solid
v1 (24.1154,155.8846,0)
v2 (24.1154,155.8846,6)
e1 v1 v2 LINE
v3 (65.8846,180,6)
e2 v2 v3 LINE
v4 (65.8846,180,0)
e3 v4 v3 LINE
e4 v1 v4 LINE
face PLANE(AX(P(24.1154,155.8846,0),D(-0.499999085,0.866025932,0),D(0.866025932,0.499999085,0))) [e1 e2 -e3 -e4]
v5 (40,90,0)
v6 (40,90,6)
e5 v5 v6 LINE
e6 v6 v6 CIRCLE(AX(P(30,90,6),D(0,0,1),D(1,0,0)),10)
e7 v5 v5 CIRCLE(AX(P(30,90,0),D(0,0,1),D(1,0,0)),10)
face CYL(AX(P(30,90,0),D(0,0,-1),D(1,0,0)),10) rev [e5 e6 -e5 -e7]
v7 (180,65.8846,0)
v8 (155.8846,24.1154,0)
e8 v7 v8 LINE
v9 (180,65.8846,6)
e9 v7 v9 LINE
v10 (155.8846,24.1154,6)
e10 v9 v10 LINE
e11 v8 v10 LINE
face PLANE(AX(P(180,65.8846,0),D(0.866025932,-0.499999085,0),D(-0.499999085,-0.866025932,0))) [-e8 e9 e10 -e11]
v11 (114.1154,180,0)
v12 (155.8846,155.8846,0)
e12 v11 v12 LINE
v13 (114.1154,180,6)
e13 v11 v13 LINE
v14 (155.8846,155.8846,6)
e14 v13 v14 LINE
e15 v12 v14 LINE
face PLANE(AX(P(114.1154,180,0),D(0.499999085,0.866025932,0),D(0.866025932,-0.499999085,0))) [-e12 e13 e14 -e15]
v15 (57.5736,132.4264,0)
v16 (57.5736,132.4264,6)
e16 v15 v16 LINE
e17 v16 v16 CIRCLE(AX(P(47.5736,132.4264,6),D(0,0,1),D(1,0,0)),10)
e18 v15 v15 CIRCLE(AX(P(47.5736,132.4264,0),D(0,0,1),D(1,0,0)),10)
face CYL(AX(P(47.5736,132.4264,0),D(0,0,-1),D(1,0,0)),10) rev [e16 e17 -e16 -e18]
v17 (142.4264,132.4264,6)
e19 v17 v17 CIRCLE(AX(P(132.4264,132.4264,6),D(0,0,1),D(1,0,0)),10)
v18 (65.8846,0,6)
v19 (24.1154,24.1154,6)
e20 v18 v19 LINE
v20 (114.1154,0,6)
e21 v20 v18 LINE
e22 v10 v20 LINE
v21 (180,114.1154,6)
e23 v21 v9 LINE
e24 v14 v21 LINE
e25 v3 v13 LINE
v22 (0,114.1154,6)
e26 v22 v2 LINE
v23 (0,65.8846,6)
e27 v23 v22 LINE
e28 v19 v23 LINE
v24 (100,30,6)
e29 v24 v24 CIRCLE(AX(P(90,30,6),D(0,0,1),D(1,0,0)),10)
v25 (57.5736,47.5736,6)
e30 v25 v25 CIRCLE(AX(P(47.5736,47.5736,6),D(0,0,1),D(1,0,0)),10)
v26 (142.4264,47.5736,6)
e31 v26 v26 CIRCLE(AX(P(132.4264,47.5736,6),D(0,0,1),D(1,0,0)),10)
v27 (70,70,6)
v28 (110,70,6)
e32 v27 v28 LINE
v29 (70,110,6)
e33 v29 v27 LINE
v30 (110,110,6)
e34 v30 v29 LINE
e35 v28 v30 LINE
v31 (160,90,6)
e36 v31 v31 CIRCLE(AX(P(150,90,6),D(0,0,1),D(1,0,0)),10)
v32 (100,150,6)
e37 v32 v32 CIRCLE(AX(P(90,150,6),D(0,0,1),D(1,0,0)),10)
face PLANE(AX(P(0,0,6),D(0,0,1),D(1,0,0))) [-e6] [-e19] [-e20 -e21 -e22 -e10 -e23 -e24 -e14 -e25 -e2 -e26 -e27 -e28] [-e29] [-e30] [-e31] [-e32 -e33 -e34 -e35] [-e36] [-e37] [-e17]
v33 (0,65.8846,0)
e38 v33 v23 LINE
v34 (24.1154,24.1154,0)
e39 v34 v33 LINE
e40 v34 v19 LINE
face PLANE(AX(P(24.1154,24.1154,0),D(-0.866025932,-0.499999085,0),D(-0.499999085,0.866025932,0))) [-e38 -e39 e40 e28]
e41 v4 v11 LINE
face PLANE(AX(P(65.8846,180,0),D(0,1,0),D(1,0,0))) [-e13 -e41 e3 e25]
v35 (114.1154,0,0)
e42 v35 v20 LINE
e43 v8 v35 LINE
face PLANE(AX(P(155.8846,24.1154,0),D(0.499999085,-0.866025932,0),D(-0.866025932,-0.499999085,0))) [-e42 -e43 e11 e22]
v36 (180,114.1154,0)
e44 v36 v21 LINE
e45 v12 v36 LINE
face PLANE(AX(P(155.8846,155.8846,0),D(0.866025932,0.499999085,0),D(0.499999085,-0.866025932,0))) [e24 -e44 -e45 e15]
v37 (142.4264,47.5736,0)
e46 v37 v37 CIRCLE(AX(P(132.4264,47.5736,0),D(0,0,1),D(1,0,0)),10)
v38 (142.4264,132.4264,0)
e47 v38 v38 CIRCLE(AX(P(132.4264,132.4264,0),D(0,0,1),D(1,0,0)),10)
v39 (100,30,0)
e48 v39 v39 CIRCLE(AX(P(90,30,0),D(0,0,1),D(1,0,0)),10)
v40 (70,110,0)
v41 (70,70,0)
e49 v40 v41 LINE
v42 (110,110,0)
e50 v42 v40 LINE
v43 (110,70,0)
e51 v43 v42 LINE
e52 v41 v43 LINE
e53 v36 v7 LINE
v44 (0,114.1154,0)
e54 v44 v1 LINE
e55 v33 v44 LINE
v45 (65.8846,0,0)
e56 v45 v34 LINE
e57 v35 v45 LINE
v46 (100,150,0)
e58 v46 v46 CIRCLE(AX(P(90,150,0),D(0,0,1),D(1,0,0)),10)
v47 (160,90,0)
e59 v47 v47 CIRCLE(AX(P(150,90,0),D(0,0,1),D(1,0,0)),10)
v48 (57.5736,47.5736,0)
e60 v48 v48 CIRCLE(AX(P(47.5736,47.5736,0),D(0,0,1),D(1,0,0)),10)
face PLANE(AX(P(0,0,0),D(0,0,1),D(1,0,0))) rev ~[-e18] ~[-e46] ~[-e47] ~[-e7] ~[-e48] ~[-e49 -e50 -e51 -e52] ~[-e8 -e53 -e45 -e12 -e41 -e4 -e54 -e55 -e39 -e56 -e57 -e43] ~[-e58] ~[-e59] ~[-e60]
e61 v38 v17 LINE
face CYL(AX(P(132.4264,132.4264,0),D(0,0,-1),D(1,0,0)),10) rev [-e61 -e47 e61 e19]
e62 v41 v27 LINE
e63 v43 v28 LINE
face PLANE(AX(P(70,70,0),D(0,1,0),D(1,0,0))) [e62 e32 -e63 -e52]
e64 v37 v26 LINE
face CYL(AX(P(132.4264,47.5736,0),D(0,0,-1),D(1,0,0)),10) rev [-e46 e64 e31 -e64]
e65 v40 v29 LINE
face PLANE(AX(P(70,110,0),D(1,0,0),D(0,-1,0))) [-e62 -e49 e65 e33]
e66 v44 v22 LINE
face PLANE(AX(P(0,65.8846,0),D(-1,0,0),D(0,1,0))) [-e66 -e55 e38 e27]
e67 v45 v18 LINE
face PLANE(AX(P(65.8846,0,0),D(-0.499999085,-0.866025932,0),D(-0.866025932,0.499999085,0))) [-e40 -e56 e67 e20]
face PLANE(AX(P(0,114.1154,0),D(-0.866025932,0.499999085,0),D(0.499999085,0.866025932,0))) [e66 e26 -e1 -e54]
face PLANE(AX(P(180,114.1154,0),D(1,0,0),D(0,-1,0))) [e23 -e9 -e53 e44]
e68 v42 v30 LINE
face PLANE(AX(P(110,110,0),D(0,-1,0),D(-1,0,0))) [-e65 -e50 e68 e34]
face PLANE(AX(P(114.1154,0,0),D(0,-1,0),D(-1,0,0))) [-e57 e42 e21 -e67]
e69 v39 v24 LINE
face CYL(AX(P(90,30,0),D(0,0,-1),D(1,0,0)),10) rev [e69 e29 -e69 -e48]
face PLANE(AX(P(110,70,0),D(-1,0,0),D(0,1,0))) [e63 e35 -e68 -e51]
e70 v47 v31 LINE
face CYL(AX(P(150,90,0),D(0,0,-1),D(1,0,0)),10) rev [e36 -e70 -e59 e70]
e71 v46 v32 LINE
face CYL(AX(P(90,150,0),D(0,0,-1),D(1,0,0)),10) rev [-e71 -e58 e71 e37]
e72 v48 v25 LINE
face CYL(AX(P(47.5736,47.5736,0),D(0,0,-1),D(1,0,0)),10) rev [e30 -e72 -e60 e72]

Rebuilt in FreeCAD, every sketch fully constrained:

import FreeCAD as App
import Part
import Sketcher
from FreeCAD import Vector
Q = App.Units.Quantity


def add_polygon(sketch, points):
    """Adds a closed chain of lines whose ends are joined by coincident constraints."""
    first, n = sketch.GeometryCount, len(points)
    for a, b in zip(points, points[1:] + points[:1]):
        sketch.addGeometry(Part.LineSegment(App.Vector(*a, 0), App.Vector(*b, 0)), False)
    for i in range(n):
        sketch.addConstraint(Sketcher.Constraint("Coincident", first + i, 2, first + (i + 1) % n, 1))

doc = App.newDocument("Part")
body = doc.addObject("PartDesign::Body", "Body")

# Sketch on XY plane
sketch1 = body.newObject("Sketcher::SketchObject", "Sketch")
sketch1.AttachmentSupport = (doc.getObject("XY_Plane"), [""])
sketch1.MapMode = "FlatFace"
add_polygon(sketch1, [(24, 24), (66, 0), (114, 0), (156, 24), (180, 66), (180, 114), (156, 156), (114, 180), (66, 180), (24, 156), (0, 114), (0, 66)])  # lines 0-11
sketch1.addGeometry(Part.Circle(Vector(48, 48, 0), Vector(0, 0, 1), 10), False)  # 12
sketch1.addGeometry(Part.Circle(Vector(90, 30, 0), Vector(0, 0, 1), 10), False)  # 13
sketch1.addGeometry(Part.Circle(Vector(132, 48, 0), Vector(0, 0, 1), 10), False)  # 14
sketch1.addGeometry(Part.Circle(Vector(30, 90, 0), Vector(0, 0, 1), 10), False)  # 15
sketch1.addGeometry(Part.Circle(Vector(48, 132, 0), Vector(0, 0, 1), 10), False)  # 16
add_polygon(sketch1, [(110, 70), (70, 70), (70, 110), (110, 110)])  # lines 17-20
sketch1.addGeometry(Part.Circle(Vector(132, 132, 0), Vector(0, 0, 1), 10), False)  # 21
sketch1.addGeometry(Part.Circle(Vector(150, 90, 0), Vector(0, 0, 1), 10), False)  # 22
sketch1.addGeometry(Part.Circle(Vector(90, 150, 0), Vector(0, 0, 1), 10), False)  # 23
sketch1.addConstraint([
    Sketcher.Constraint("Horizontal", 1),
    Sketcher.Constraint("Vertical", 4),
    Sketcher.Constraint("Horizontal", 7),
    Sketcher.Constraint("Vertical", 10),
    Sketcher.Constraint("Horizontal", 17),
    Sketcher.Constraint("Vertical", 18),
    Sketcher.Constraint("Horizontal", 19),
    Sketcher.Constraint("Vertical", 20),
    Sketcher.Constraint("Equal", 12, 13),
    Sketcher.Constraint("Equal", 13, 14),
    Sketcher.Constraint("Equal", 14, 15),
    Sketcher.Constraint("Equal", 15, 16),
    Sketcher.Constraint("Equal", 16, 21),
    Sketcher.Constraint("Equal", 21, 22),
    Sketcher.Constraint("Equal", 22, 23),
    Sketcher.Constraint("PointOnObject", 0, 2, -1),
    Sketcher.Constraint("PointOnObject", 9, 2, -2),
    Sketcher.Constraint("Perpendicular", 0, 3),
    Sketcher.Constraint("Perpendicular", 2, 5),
    Sketcher.Constraint("Perpendicular", 3, 6),
    Sketcher.Constraint("Perpendicular", 5, 8),
    Sketcher.Constraint("Perpendicular", 6, 9),
    Sketcher.Constraint("Perpendicular", 8, 11),
    Sketcher.Constraint("Horizontal", 12, 3, 14, 3),
    Sketcher.Constraint("Horizontal", 16, 3, 21, 3),
    Sketcher.Constraint("Horizontal", 15, 3, 22, 3),
    Sketcher.Constraint("Horizontal", 5, 2, 8, 2),
    Sketcher.Constraint("Horizontal", 4, 2, 9, 2),
    Sketcher.Constraint("Horizontal", 3, 2, 10, 2),
    Sketcher.Constraint("Horizontal", 2, 2, 11, 2),
    Sketcher.Constraint("Vertical", 12, 3, 16, 3),
    Sketcher.Constraint("Vertical", 14, 3, 21, 3),
    Sketcher.Constraint("Vertical", 13, 3, 23, 3),
    Sketcher.Constraint("Vertical", 2, 2, 5, 2),
    Sketcher.Constraint("Vertical", 1, 2, 6, 2),
    Sketcher.Constraint("Vertical", 0, 2, 7, 2),
    Sketcher.Constraint("Equal", 7, 4),
    Sketcher.Constraint("Equal", 19, 18),
    Sketcher.Constraint("Equal", 2, 3),
    Sketcher.Constraint("Diameter", 12, 20.0),
    Sketcher.Constraint("DistanceX", 17, 2, 13, 3, 20.0),
    Sketcher.Constraint("DistanceY", 17, 2, 15, 3, 20.0),
    Sketcher.Constraint("DistanceY", 15, 3, 18, 2, 20.0),
    Sketcher.Constraint("Angle", 0, Q("-30 deg")),
    Sketcher.Constraint("DistanceX", -1, 1, 13, 3, 90.0),
    Sketcher.Constraint("DistanceY", -1, 1, 13, 3, 30.0),
    Sketcher.Constraint("DistanceX", -1, 1, 15, 3, 30.0),
    Sketcher.Constraint("DistanceY", -1, 1, 15, 3, 90.0),
    Sketcher.Constraint("DistanceX", -1, 1, 22, 3, 150.0),
    Sketcher.Constraint("DistanceY", -1, 1, 23, 3, 150.0),
    Sketcher.Constraint("DistanceX", -1, 1, 3, 2, 180.0),
    Sketcher.Constraint("DistanceX", 0, 2, 2, 2, 90.0),
    Sketcher.Constraint("DistanceX", 12, 3, 0, 2, 18.311),
    Sketcher.Constraint("DistanceX", 1, 2, 14, 3, 18.311),
    Sketcher.Constraint("DistanceY", 14, 3, 3, 2, 18.311),
    Sketcher.Constraint("DistanceY", 4, 2, 21, 3, 18.311),
])
pad1 = body.newObject("PartDesign::Pad", "Pad")
pad1.Profile = sketch1
pad1.Length = 6

doc.recompute()
